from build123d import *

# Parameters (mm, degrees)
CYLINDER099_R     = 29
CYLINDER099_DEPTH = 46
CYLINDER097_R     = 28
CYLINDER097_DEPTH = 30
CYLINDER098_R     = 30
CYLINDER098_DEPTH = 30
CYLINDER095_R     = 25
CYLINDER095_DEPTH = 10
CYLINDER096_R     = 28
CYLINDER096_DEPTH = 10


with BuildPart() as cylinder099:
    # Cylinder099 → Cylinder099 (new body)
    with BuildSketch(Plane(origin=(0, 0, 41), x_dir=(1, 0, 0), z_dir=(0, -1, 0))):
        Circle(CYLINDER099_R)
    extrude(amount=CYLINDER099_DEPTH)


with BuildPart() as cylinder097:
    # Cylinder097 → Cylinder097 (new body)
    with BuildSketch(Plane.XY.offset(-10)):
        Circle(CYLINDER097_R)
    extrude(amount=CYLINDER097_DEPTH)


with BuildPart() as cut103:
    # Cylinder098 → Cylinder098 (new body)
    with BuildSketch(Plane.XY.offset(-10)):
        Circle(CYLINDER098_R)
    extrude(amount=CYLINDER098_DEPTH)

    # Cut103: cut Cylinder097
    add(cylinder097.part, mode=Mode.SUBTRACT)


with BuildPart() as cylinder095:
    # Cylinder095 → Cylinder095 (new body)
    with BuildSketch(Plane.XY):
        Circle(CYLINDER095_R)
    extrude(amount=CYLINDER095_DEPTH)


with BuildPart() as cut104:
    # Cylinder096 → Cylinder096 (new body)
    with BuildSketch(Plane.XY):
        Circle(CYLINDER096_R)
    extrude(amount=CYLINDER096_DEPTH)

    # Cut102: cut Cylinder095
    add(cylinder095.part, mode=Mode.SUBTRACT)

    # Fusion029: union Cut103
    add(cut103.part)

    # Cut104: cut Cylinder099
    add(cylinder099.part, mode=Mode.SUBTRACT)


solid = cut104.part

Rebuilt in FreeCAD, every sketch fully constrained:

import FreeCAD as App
import Part
import Sketcher

V = App.Vector

doc = App.newDocument("Part")
body = doc.addObject("PartDesign::Body", "Body")

# Sketch on XZ plane
sketch1 = body.newObject("Sketcher::SketchObject", "Sketch")
sketch1.AttachmentSupport = (doc.getObject("XZ_Plane"), [""])
sketch1.MapMode = "FlatFace"
sketch1.addGeometry(Part.Circle(V(0, 41, 0), V(0, 0, 1), 29), False)
sketch1.addConstraint([
    Sketcher.Constraint("PointOnObject", 0, 3, -2),
    Sketcher.Constraint("Diameter", 0, 58.0),
    Sketcher.Constraint("DistanceY", -1, 1, 0, 3, 41.0),
])
pad1 = body.newObject("PartDesign::Pad", "Pad")
pad1.Profile = sketch1
pad1.Length = 46
body2 = doc.addObject("PartDesign::Body", "Body001")

# Sketch on XY plane
sketch2 = body2.newObject("Sketcher::SketchObject", "Sketch001")
sketch2.AttachmentSupport = (doc.getObject("XY_Plane001"), [""])
sketch2.MapMode = "FlatFace"
sketch2.AttachmentOffset = App.Placement(V(0, 0, -10), App.Rotation())
sketch2.addGeometry(Part.Circle(V(0, 0, 0), V(0, 0, 1), 28), False)
sketch2.addConstraint([
    Sketcher.Constraint("Coincident", 0, 3, -1, 1),
    Sketcher.Constraint("Diameter", 0, 56.0),
])
pad2 = body2.newObject("PartDesign::Pad", "Pad001")
pad2.Profile = sketch2
pad2.Length = 30
body3 = doc.addObject("PartDesign::Body", "Body002")

# Sketch on XY plane
sketch3 = body3.newObject("Sketcher::SketchObject", "Sketch002")
sketch3.AttachmentSupport = (doc.getObject("XY_Plane002"), [""])
sketch3.MapMode = "FlatFace"
sketch3.AttachmentOffset = App.Placement(V(0, 0, -10), App.Rotation())
sketch3.addGeometry(Part.Circle(V(0, 0, 0), V(0, 0, 1), 30), False)
sketch3.addConstraint([
    Sketcher.Constraint("Coincident", 0, 3, -1, 1),
    Sketcher.Constraint("Diameter", 0, 60.0),
])
pad3 = body3.newObject("PartDesign::Pad", "Pad002")
pad3.Profile = sketch3
pad3.Length = 30
doc.recompute()

boolean = body3.newObject("PartDesign::Boolean", "Boolean")
boolean.Type = "Cut"
boolean.addObjects([body2])
body4 = doc.addObject("PartDesign::Body", "Body003")

# Sketch on XY plane
sketch4 = body4.newObject("Sketcher::SketchObject", "Sketch003")
sketch4.AttachmentSupport = (doc.getObject("XY_Plane003"), [""])
sketch4.MapMode = "FlatFace"
sketch4.addGeometry(Part.Circle(V(0, 0, 0), V(0, 0, 1), 25), False)
sketch4.addConstraint([
    Sketcher.Constraint("Coincident", 0, 3, -1, 1),
    Sketcher.Constraint("Diameter", 0, 50.0),
])
pad4 = body4.newObject("PartDesign::Pad", "Pad003")
pad4.Profile = sketch4
pad4.Length = 10
body5 = doc.addObject("PartDesign::Body", "Body004")

# Sketch on XY plane
sketch5 = body5.newObject("Sketcher::SketchObject", "Sketch004")
sketch5.AttachmentSupport = (doc.getObject("XY_Plane004"), [""])
sketch5.MapMode = "FlatFace"
sketch5.addGeometry(Part.Circle(V(0, 0, 0), V(0, 0, 1), 28), False)
sketch5.addConstraint([
    Sketcher.Constraint("Coincident", 0, 3, -1, 1),
    Sketcher.Constraint("Diameter", 0, 56.0),
])
pad5 = body5.newObject("PartDesign::Pad", "Pad004")
pad5.Profile = sketch5
pad5.Length = 10
doc.recompute()

boolean2 = body5.newObject("PartDesign::Boolean", "Boolean001")
boolean2.Type = "Cut"
boolean2.addObjects([body4])
doc.recompute()

boolean3 = body5.newObject("PartDesign::Boolean", "Boolean002")
boolean3.Type = "Fuse"
boolean3.addObjects([body3])
doc.recompute()

boolean4 = body5.newObject("PartDesign::Boolean", "Boolean003")
boolean4.Type = "Cut"
boolean4.addObjects([body])

doc.recompute()
